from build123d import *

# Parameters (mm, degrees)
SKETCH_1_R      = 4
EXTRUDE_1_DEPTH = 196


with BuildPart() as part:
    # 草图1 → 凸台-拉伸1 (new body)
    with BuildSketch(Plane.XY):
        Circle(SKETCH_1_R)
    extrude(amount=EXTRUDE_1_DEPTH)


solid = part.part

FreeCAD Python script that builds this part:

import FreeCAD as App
import Part
import Sketcher

doc = App.newDocument("Part")
body = doc.addObject("PartDesign::Body", "Body")

# Sketch on XY plane
sketch1 = body.newObject("Sketcher::SketchObject", "Sketch")
sketch1.AttachmentSupport = (doc.getObject("XY_Plane"), [""])
sketch1.MapMode = "FlatFace"
sketch1.addGeometry(Part.Circle(App.Vector(0, 0, 0), App.Vector(0, 0, 1), 4), False)
sketch1.addConstraint(Sketcher.Constraint("Coincident", 0, 3, -1, 1))
sketch1.addConstraint(Sketcher.Constraint("Diameter", 0, 8.0))
pad1 = body.newObject("PartDesign::Pad", "Pad")
pad1.Profile = sketch1
pad1.Length = 196

doc.recompute()
